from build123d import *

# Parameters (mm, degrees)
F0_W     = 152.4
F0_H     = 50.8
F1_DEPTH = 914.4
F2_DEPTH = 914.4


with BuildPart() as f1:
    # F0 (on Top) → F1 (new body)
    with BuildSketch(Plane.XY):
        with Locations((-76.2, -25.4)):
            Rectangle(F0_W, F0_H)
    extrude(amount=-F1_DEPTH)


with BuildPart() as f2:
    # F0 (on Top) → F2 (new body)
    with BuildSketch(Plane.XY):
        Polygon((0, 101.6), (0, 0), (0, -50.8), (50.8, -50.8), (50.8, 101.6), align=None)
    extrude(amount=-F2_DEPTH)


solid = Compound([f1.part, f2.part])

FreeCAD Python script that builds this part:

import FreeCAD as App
import Part
import Sketcher

V = App.Vector
Q = App.Units.Quantity

doc = App.newDocument("Part")
params = doc.addObject("Spreadsheet::Sheet", "Params")
for row, (alias, value) in enumerate([
    ("sketch1_width", "6 in"),
    ("sketch1_height", "2 in"),
    ("pad1_length", "36 in"),
    ("sketch2_width", "2 in"),
    ("sketch2_height", "6 in"),
    ("pad2_length", "36 in"),
], start=1):
    params.set(f"A{row}", alias)
    params.set(f"B{row}", "=" + value)
    params.setAlias(f"B{row}", alias)

body = doc.addObject("PartDesign::Body", "Body")

# Sketch on XY plane
sketch1 = body.newObject("Sketcher::SketchObject", "Sketch")
sketch1.AttachmentSupport = (doc.getObject("XY_Plane"), [""])
sketch1.MapMode = "FlatFace"
sketch1.addGeometry([
    Part.LineSegment(V(-152, 0, 0), V(-152, -51, 0)),
    Part.LineSegment(V(-152, -51, 0), V(0, -51, 0)),
    Part.LineSegment(V(0, -51, 0), V(0, 0, 0)),
    Part.LineSegment(V(0, 0, 0), V(-152, 0, 0)),
], False)
sketch1.addConstraint([
    Sketcher.Constraint("Coincident", 0, 2, 1, 1),
    Sketcher.Constraint("Coincident", 1, 2, 2, 1),
    Sketcher.Constraint("Coincident", 2, 2, 3, 1),
    Sketcher.Constraint("Coincident", 3, 2, 0, 1),
    Sketcher.Constraint("Vertical", 0),
    Sketcher.Constraint("Horizontal", 1),
    Sketcher.Constraint("Vertical", 2),
    Sketcher.Constraint("Horizontal", 3),
    Sketcher.Constraint("Coincident", 2, 2, -1, 1),
    Sketcher.Constraint("DistanceX", 1, 1, 1, 2, Q("6 in")),
    Sketcher.Constraint("DistanceY", 0, 2, 0, 1, Q("2 in")),
])
sketch1.setExpression("Constraints[9]", "Params.sketch1_width")
sketch1.setExpression("Constraints[10]", "Params.sketch1_height")
pad1 = body.newObject("PartDesign::Pad", "Pad")
pad1.Profile = sketch1
pad1.setExpression("Length", "Params.pad1_length")
pad1.Reversed = True
body2 = doc.addObject("PartDesign::Body", "Body001")

# Sketch on XY plane
sketch2 = body2.newObject("Sketcher::SketchObject", "Sketch001")
sketch2.AttachmentSupport = (doc.getObject("XY_Plane001"), [""])
sketch2.MapMode = "FlatFace"
sketch2.addGeometry([
    Part.LineSegment(V(0, 102, 0), V(0, -51, 0)),
    Part.LineSegment(V(0, -51, 0), V(51, -51, 0)),
    Part.LineSegment(V(51, -51, 0), V(51, 102, 0)),
    Part.LineSegment(V(51, 102, 0), V(0, 102, 0)),
], False)
sketch2.addConstraint([
    Sketcher.Constraint("Coincident", 0, 2, 1, 1),
    Sketcher.Constraint("Coincident", 1, 2, 2, 1),
    Sketcher.Constraint("Coincident", 2, 2, 3, 1),
    Sketcher.Constraint("Coincident", 3, 2, 0, 1),
    Sketcher.Constraint("Vertical", 0),
    Sketcher.Constraint("Horizontal", 1),
    Sketcher.Constraint("Vertical", 2),
    Sketcher.Constraint("Horizontal", 3),
    Sketcher.Constraint("PointOnObject", 0, 2, -2),
    Sketcher.Constraint("DistanceX", 1, 1, 1, 2, Q("2 in")),
    Sketcher.Constraint("DistanceY", 0, 2, 0, 1, Q("6 in")),
    Sketcher.Constraint("DistanceY", 0, 2, -1, 1, Q("2 in")),
])
sketch2.setExpression("Constraints[9]", "Params.sketch2_width")
sketch2.setExpression("Constraints[10]", "Params.sketch2_height")
pad2 = body2.newObject("PartDesign::Pad", "Pad001")
pad2.Profile = sketch2
pad2.setExpression("Length", "Params.pad2_length")
pad2.Reversed = True

doc.recompute()
